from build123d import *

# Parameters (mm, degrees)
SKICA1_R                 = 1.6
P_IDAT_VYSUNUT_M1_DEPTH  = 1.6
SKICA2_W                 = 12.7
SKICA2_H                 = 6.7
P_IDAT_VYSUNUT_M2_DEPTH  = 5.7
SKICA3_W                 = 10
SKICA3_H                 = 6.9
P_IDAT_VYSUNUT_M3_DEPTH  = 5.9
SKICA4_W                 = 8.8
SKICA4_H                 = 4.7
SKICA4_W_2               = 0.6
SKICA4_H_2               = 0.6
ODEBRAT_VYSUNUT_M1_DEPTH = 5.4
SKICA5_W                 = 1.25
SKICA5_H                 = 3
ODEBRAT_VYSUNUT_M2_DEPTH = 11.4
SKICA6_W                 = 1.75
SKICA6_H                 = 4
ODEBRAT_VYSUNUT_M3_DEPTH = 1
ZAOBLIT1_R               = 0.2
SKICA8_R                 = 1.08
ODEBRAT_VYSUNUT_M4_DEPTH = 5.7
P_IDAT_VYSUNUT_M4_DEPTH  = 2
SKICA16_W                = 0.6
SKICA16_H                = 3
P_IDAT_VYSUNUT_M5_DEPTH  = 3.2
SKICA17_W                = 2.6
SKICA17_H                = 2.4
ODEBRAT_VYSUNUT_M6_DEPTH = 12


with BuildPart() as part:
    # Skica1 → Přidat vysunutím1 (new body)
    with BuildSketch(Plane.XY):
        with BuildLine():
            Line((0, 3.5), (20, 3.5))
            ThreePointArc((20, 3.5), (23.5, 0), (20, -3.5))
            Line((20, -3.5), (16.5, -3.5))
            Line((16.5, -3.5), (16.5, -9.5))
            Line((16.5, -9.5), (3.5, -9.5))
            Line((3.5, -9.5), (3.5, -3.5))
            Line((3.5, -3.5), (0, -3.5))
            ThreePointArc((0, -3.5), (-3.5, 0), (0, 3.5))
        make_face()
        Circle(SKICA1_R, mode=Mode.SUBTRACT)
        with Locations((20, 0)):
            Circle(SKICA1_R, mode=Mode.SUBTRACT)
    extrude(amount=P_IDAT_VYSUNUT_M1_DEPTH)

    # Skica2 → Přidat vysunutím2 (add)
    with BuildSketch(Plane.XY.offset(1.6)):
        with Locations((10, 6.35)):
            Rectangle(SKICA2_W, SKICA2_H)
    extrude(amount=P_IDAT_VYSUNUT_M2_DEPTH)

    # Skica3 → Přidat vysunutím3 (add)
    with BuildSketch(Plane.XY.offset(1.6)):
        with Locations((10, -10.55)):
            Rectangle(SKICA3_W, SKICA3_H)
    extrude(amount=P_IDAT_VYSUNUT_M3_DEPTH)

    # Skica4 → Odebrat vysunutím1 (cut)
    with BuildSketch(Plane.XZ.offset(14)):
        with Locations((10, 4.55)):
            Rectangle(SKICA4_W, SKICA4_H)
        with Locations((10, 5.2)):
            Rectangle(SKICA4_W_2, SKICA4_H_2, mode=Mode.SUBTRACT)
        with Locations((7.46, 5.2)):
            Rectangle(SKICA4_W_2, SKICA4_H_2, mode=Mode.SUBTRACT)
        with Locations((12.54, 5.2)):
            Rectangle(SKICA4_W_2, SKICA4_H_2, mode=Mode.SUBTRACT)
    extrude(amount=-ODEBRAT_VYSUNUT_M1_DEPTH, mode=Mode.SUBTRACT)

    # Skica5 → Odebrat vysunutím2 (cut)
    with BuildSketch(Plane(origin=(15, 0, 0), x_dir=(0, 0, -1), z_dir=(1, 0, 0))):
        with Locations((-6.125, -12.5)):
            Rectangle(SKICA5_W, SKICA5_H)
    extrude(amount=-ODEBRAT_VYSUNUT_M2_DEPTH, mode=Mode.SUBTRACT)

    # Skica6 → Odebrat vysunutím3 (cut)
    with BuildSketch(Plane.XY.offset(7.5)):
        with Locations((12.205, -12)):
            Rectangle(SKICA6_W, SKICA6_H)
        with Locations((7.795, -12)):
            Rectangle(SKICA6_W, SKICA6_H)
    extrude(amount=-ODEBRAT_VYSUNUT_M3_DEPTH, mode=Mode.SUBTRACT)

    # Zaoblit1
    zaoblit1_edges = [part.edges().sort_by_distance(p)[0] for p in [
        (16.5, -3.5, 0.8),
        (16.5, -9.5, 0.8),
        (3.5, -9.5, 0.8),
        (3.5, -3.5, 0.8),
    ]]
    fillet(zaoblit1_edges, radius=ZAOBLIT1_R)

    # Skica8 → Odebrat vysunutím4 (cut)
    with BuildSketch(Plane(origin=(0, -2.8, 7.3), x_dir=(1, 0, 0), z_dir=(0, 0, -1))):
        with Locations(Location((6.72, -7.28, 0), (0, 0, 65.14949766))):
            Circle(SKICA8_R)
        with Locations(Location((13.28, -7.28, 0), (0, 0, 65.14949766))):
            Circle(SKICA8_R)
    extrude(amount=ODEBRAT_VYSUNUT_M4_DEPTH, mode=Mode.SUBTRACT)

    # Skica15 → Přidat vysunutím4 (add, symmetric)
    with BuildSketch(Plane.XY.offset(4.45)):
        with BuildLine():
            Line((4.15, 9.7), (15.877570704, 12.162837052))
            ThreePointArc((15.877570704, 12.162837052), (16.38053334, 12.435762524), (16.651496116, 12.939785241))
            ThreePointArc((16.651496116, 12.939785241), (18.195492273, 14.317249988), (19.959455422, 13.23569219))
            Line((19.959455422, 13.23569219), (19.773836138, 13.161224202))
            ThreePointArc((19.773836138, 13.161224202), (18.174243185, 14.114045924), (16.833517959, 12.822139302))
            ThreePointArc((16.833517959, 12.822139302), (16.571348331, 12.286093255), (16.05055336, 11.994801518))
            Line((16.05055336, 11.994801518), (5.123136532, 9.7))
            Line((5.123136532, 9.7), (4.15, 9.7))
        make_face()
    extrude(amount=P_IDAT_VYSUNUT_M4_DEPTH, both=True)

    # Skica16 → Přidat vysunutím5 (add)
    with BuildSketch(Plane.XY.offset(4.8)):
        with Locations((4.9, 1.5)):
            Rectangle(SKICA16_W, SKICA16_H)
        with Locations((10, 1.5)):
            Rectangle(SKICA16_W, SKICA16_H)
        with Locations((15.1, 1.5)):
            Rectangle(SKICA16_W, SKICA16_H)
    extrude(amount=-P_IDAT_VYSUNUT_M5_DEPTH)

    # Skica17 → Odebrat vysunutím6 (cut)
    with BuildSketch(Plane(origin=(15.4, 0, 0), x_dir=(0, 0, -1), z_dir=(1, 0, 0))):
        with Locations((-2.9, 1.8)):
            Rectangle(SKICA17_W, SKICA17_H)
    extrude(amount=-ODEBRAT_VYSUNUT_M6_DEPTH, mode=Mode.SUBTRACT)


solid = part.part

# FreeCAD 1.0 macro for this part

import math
import FreeCAD as App
import Part
import Sketcher
from FreeCAD import Vector
Q = App.Units.Quantity


def edges_at(feature, points):
    """Names of the edges that pass closest to the given points."""
    edges = feature.Shape.Edges
    near = lambda p: min(range(len(edges)), key=lambda i: edges[i].distToShape(Part.Vertex(*p))[0])
    return sorted({f"Edge{near(p) + 1}" for p in points})


def add_polygon(sketch, points):
    """Adds a closed chain of lines whose ends are joined by coincident constraints."""
    first, n = sketch.GeometryCount, len(points)
    for a, b in zip(points, points[1:] + points[:1]):
        sketch.addGeometry(Part.LineSegment(App.Vector(*a, 0), App.Vector(*b, 0)), False)
    for i in range(n):
        sketch.addConstraint(Sketcher.Constraint("Coincident", first + i, 2, first + (i + 1) % n, 1))

doc = App.newDocument("Part")
params = doc.addObject("Spreadsheet::Sheet", "Params")
for row, (alias, value) in enumerate([
    ("sketch1_diameter", "3.2 mm"),
    ("sketch1_radius", "3.5 mm"),
    ("sketch1_width", "20 mm"),
    ("sketch1_width2", "13 mm"),
    ("sketch1_height", "6 mm"),
    ("pad1_length", "1.6 mm"),
    ("sketch2_width", "12.7 mm"),
    ("sketch2_height", "6.7 mm"),
    ("pad2_length", "5.7 mm"),
    ("sketch3_width", "10 mm"),
    ("sketch3_height", "6.9 mm"),
    ("pad3_length", "5.9 mm"),
    ("sketch4_width", "8.8 mm"),
    ("sketch4_width2", "0.6 mm"),
    ("sketch4_height", "4.7 mm"),
    ("pocket1_length", "5.4 mm"),
    ("sketch5_width", "3 mm"),
    ("sketch5_height", "1.25 mm"),
    ("pocket2_length", "11.4 mm"),
    ("sketch6_height", "4 mm"),
    ("sketch6_width", "1.75 mm"),
    ("pocket3_length", "1 mm"),
    ("fillet_radius", "0.2 mm"),
    ("sketch7_diameter", "2.16 mm"),
    ("pocket4_length", "5.7 mm"),
    ("sketch8_radius", "1 mm"),
    ("sketch8_length", "0.2 mm"),
    ("pad4_length", "4 mm"),
    ("sketch9_height", "3 mm"),
    ("sketch9_width", "0.6 mm"),
    ("pad5_length", "3.2 mm"),
    ("sketch10_width", "2.4 mm"),
    ("sketch10_height", "2.6 mm"),
    ("pocket5_length", "12 mm"),
], start=1):
    params.set(f"A{row}", alias)
    params.set(f"B{row}", "=" + value)
    params.setAlias(f"B{row}", alias)

body = doc.addObject("PartDesign::Body", "Body")

# Sketch on XY plane
sketch1 = body.newObject("Sketcher::SketchObject", "Sketch")
sketch1.AttachmentSupport = (doc.getObject("XY_Plane"), [""])
sketch1.MapMode = "FlatFace"
sketch1.addGeometry([
    Part.LineSegment(Vector(20, 3.5, 0), Vector(0, 3.5, 0)),  # 0
    Part.ArcOfCircle(Part.Circle(Vector(0, 0, 0), Vector(0, 0, 1), 3.5), math.radians(90), math.radians(270)),  # 1
    Part.LineSegment(Vector(0, -3.5, 0), Vector(3.5, -3.5, 0)),  # 2
    Part.LineSegment(Vector(3.5, -3.5, 0), Vector(3.5, -9.5, 0)),  # 3
    Part.LineSegment(Vector(3.5, -9.5, 0), Vector(16.5, -9.5, 0)),  # 4
    Part.LineSegment(Vector(16.5, -9.5, 0), Vector(16.5, -3.5, 0)),  # 5
    Part.LineSegment(Vector(16.5, -3.5, 0), Vector(20, -3.5, 0)),  # 6
    Part.ArcOfCircle(Part.Circle(Vector(20, 0, 0), Vector(0, 0, 1), 3.5), math.radians(-90), math.radians(90)),  # 7
    Part.Circle(Vector(20, 0, 0), Vector(0, 0, 1), 1.6),  # 8
    Part.Circle(Vector(0, 0, 0), Vector(0, 0, 1), 1.6),  # 9
], False)
sketch1.addConstraint([
    Sketcher.Constraint("Tangent", 0, 2, 1, 1),
    Sketcher.Constraint("Tangent", 1, 2, 2, 1),
    Sketcher.Constraint("Coincident", 2, 2, 3, 1),
    Sketcher.Constraint("Coincident", 3, 2, 4, 1),
    Sketcher.Constraint("Coincident", 4, 2, 5, 1),
    Sketcher.Constraint("Coincident", 5, 2, 6, 1),
    Sketcher.Constraint("Tangent", 6, 2, 7, 1),
    Sketcher.Constraint("Tangent", 7, 2, 0, 1),
    Sketcher.Constraint("Horizontal", 0),
    Sketcher.Constraint("Horizontal", 2),
    Sketcher.Constraint("Vertical", 3),
    Sketcher.Constraint("Horizontal", 4),
    Sketcher.Constraint("Vertical", 5),
    Sketcher.Constraint("Horizontal", 6),
    Sketcher.Constraint("Coincident", 1, 3, -1, 1),
    Sketcher.Constraint("Coincident", 9, 3, -1, 1),
    Sketcher.Constraint("Coincident", 8, 3, 7, 3),
    Sketcher.Constraint("Equal", 1, 7),
    Sketcher.Constraint("Equal", 8, 9),
    Sketcher.Constraint("Equal", 2, 6),
    Sketcher.Constraint("Diameter", 8, 3.2),
    Sketcher.Constraint("Radius", 1, 3.5),
    Sketcher.Constraint("DistanceX", 0, 2, 0, 1, 20.0),
    Sketcher.Constraint("DistanceX", 4, 1, 4, 2, 13.0),
    Sketcher.Constraint("DistanceY", 3, 2, 3, 1, 6.0),
])
sketch1.setExpression("Constraints[20]", "Params.sketch1_diameter")
sketch1.setExpression("Constraints[21]", "Params.sketch1_radius")
sketch1.setExpression("Constraints[22]", "Params.sketch1_width")
sketch1.setExpression("Constraints[23]", "Params.sketch1_width2")
sketch1.setExpression("Constraints[24]", "Params.sketch1_height")
pad1 = body.newObject("PartDesign::Pad", "Pad")
pad1.Profile = sketch1
pad1.setExpression("Length", "Params.pad1_length")

# Sketch on XY plane
sketch2 = body.newObject("Sketcher::SketchObject", "Sketch001")
sketch2.AttachmentSupport = (doc.getObject("XY_Plane"), [""])
sketch2.MapMode = "FlatFace"
sketch2.AttachmentOffset = App.Placement(Vector(0, 0, 1.6), App.Rotation())
add_polygon(sketch2, [(4, 10), (4, 3), (16, 3), (16, 10)])  # lines 0-3
sketch2.addConstraint([
    Sketcher.Constraint("Vertical", 0),
    Sketcher.Constraint("Horizontal", 1),
    Sketcher.Constraint("Vertical", 2),
    Sketcher.Constraint("Horizontal", 3),
    Sketcher.Constraint("DistanceX", 1, 1, 1, 2, 12.7),
    Sketcher.Constraint("DistanceY", 0, 2, 0, 1, 6.7),
    Sketcher.Constraint("DistanceY", -1, 1, 0, 2, 3.0),
    Sketcher.Constraint("DistanceX", -1, 1, 0, 2, 3.65),
])
sketch2.setExpression("Constraints[8]", "Params.sketch2_width")
sketch2.setExpression("Constraints[9]", "Params.sketch2_height")
pad2 = body.newObject("PartDesign::Pad", "Pad001")
pad2.Profile = sketch2
pad2.setExpression("Length", "Params.pad2_length")

# Sketch on XY plane
sketch3 = body.newObject("Sketcher::SketchObject", "Sketch002")
sketch3.AttachmentSupport = (doc.getObject("XY_Plane"), [""])
sketch3.MapMode = "FlatFace"
sketch3.AttachmentOffset = App.Placement(Vector(0, 0, 1.6), App.Rotation())
add_polygon(sketch3, [(5, -7), (5, -14), (15, -14), (15, -7)])  # lines 0-3
sketch3.addConstraint([
    Sketcher.Constraint("Vertical", 0),
    Sketcher.Constraint("Horizontal", 1),
    Sketcher.Constraint("Vertical", 2),
    Sketcher.Constraint("Horizontal", 3),
    Sketcher.Constraint("DistanceX", 1, 1, 1, 2, 10.0),
    Sketcher.Constraint("DistanceY", 0, 2, 0, 1, 6.9),
    Sketcher.Constraint("DistanceX", -1, 1, 0, 2, 5.0),
    Sketcher.Constraint("DistanceY", 0, 2, -1, 1, 14.0),
])
sketch3.setExpression("Constraints[8]", "Params.sketch3_width")
sketch3.setExpression("Constraints[9]", "Params.sketch3_height")
pad3 = body.newObject("PartDesign::Pad", "Pad002")
pad3.Profile = sketch3
pad3.setExpression("Length", "Params.pad3_length")

# Sketch on XZ plane
sketch4 = body.newObject("Sketcher::SketchObject", "Sketch003")
sketch4.AttachmentSupport = (doc.getObject("XZ_Plane"), [""])
sketch4.MapMode = "FlatFace"
sketch4.AttachmentOffset = App.Placement(Vector(0, 0, 14), App.Rotation())
add_polygon(sketch4, [(5.6, 6.9), (5.6, 2.2), (14.4, 2.2), (14.4, 6.9)])  # lines 0-3
add_polygon(sketch4, [(7.8, 4.9), (7.2, 4.9), (7.2, 5.5), (7.8, 5.5)])  # lines 4-7
add_polygon(sketch4, [(10.3, 4.9), (9.7, 4.9), (9.7, 5.5), (10.3, 5.5)])  # lines 8-11
add_polygon(sketch4, [(12.8, 4.9), (12.2, 4.9), (12.2, 5.5), (12.8, 5.5)])  # lines 12-15
sketch4.addConstraint([
    Sketcher.Constraint("Vertical", 0),
    Sketcher.Constraint("Horizontal", 1),
    Sketcher.Constraint("Vertical", 2),
    Sketcher.Constraint("Horizontal", 3),
    Sketcher.Constraint("Horizontal", 4),
    Sketcher.Constraint("Vertical", 5),
    Sketcher.Constraint("Horizontal", 6),
    Sketcher.Constraint("Vertical", 7),
    Sketcher.Constraint("Horizontal", 8),
    Sketcher.Constraint("Vertical", 9),
    Sketcher.Constraint("Horizontal", 10),
    Sketcher.Constraint("Vertical", 11),
    Sketcher.Constraint("Horizontal", 12),
    Sketcher.Constraint("Vertical", 13),
    Sketcher.Constraint("Horizontal", 14),
    Sketcher.Constraint("Vertical", 15),
    Sketcher.Constraint("Horizontal", 7, 2, 8, 2),
    Sketcher.Constraint("Horizontal", 6, 2, 9, 2),
    Sketcher.Constraint("Horizontal", 11, 2, 12, 2),
    Sketcher.Constraint("Horizontal", 10, 2, 13, 2),
    Sketcher.Constraint("Equal", 6, 8),
    Sketcher.Constraint("Equal", 10, 12),
    Sketcher.Constraint("Equal", 14, 5),
    Sketcher.Constraint("DistanceX", 1, 1, 1, 2, 8.8),
    Sketcher.Constraint("DistanceX", 4, 2, 4, 1, 0.6),
    Sketcher.Constraint("DistanceY", 0, 2, 0, 1, 4.7),
    Sketcher.Constraint("DistanceY", 4, 2, 3, 2, 2.0),
    Sketcher.Constraint("DistanceX", -1, 1, 0, 2, 5.6),
    Sketcher.Constraint("DistanceY", -1, 1, 0, 2, 2.2),
    Sketcher.Constraint("DistanceX", -1, 1, 8, 2, 9.7),
    Sketcher.Constraint("DistanceX", -1, 1, 4, 2, 7.16),
    Sketcher.Constraint("DistanceX", -1, 1, 12, 2, 12.24),
])
sketch4.setExpression("Constraints[39]", "Params.sketch4_width")
sketch4.setExpression("Constraints[40]", "Params.sketch4_width2")
sketch4.setExpression("Constraints[41]", "Params.sketch4_height")
pocket1 = body.newObject("PartDesign::Pocket", "Pocket")
pocket1.Profile = sketch4
pocket1.setExpression("Length", "Params.pocket1_length")

# Sketch on YZ plane
sketch5 = body.newObject("Sketcher::SketchObject", "Sketch004")
sketch5.AttachmentSupport = (doc.getObject("YZ_Plane"), [""])
sketch5.MapMode = "FlatFace"
sketch5.AttachmentOffset = App.Placement(Vector(0, 0, 15), App.Rotation())
add_polygon(sketch5, [(-11, 6.8), (-14, 6.8), (-14, 5.5), (-11, 5.5)])  # lines 0-3
sketch5.addConstraint([
    Sketcher.Constraint("Horizontal", 0),
    Sketcher.Constraint("Vertical", 1),
    Sketcher.Constraint("Horizontal", 2),
    Sketcher.Constraint("Vertical", 3),
    Sketcher.Constraint("DistanceX", 0, 2, 0, 1, 3.0),
    Sketcher.Constraint("DistanceX", 0, 2, -1, 1, 14.0),
    Sketcher.Constraint("DistanceY", 1, 2, 1, 1, 1.25),
    Sketcher.Constraint("DistanceY", -1, 1, 1, 2, 5.5),
])
sketch5.setExpression("Constraints[8]", "Params.sketch5_width")
sketch5.setExpression("Constraints[10]", "Params.sketch5_height")
pocket2 = body.newObject("PartDesign::Pocket", "Pocket001")
pocket2.Profile = sketch5
pocket2.setExpression("Length", "Params.pocket2_length")

# Sketch on XY plane
sketch6 = body.newObject("Sketcher::SketchObject", "Sketch005")
sketch6.AttachmentSupport = (doc.getObject("XY_Plane"), [""])
sketch6.MapMode = "FlatFace"
sketch6.AttachmentOffset = App.Placement(Vector(0, 0, 7.5), App.Rotation())
add_polygon(sketch6, [(11.3, -10), (11.3, -14), (13.1, -14), (13.1, -10)])  # lines 0-3
add_polygon(sketch6, [(6.9, -10), (6.9, -14), (8.7, -14), (8.7, -10)])  # lines 4-7
sketch6.addConstraint([
    Sketcher.Constraint("Vertical", 0),
    Sketcher.Constraint("Horizontal", 1),
    Sketcher.Constraint("Vertical", 2),
    Sketcher.Constraint("Horizontal", 3),
    Sketcher.Constraint("Vertical", 4),
    Sketcher.Constraint("Horizontal", 5),
    Sketcher.Constraint("Vertical", 6),
    Sketcher.Constraint("Horizontal", 7),
    Sketcher.Constraint("Horizontal", 1, 2, 4, 2),
    Sketcher.Constraint("Horizontal", 3, 2, 6, 2),
    Sketcher.Constraint("Equal", 3, 5),
    Sketcher.Constraint("DistanceY", 0, 2, 0, 1, 4.0),
    Sketcher.Constraint("DistanceY", 0, 2, -1, 1, 14.0),
    Sketcher.Constraint("DistanceX", 1, 1, 1, 2, 1.75),
    Sketcher.Constraint("DistanceX", -1, 1, 0, 2, 11.33),
    Sketcher.Constraint("DistanceX", -1, 1, 4, 2, 6.92),
])
sketch6.setExpression("Constraints[19]", "Params.sketch6_height")
sketch6.setExpression("Constraints[21]", "Params.sketch6_width")
pocket3 = body.newObject("PartDesign::Pocket", "Pocket002")
pocket3.Profile = sketch6
pocket3.setExpression("Length", "Params.pocket3_length")
doc.recompute()

fillet = body.newObject("PartDesign::Fillet", "Fillet")
fillet.Base = (pocket3, edges_at(pocket3, [
    (16.5, -3.5, 0.8),
    (16.5, -9.5, 0.8),
    (3.5, -9.5, 0.8),
    (3.5, -3.5, 0.8),
]))
fillet.setExpression("Radius", "Params.fillet_radius")

# Sketch on XY plane
sketch7 = body.newObject("Sketcher::SketchObject", "Sketch006")
sketch7.AttachmentSupport = (doc.getObject("XY_Plane"), [""])
sketch7.MapMode = "FlatFace"
sketch7.AttachmentOffset = App.Placement(Vector(0, 0, 7.3), App.Rotation())
sketch7.addGeometry([
    Part.Circle(Vector(6.7, 4.5, 0), Vector(0, 0, 1), 1.1),
    Part.Circle(Vector(13.3, 4.5, 0), Vector(0, 0, 1), 1.1),
], False)
sketch7.addConstraint([
    Sketcher.Constraint("Equal", 0, 1),
    Sketcher.Constraint("Horizontal", 0, 3, 1, 3),
    Sketcher.Constraint("Diameter", 0, 2.16),
    Sketcher.Constraint("DistanceX", -1, 1, 0, 3, 6.72),
    Sketcher.Constraint("DistanceY", -1, 1, 0, 3, 4.48),
    Sketcher.Constraint("DistanceX", -1, 1, 1, 3, 13.28),
])
sketch7.setExpression("Constraints[2]", "Params.sketch7_diameter")
pocket4 = body.newObject("PartDesign::Pocket", "Pocket003")
pocket4.Profile = sketch7
pocket4.setExpression("Length", "Params.pocket4_length")

# Sketch on XY plane
sketch8 = body.newObject("Sketcher::SketchObject", "Sketch007")
sketch8.AttachmentSupport = (doc.getObject("XY_Plane"), [""])
sketch8.MapMode = "FlatFace"
sketch8.AttachmentOffset = App.Placement(Vector(0, 0, 4.45), App.Rotation())
sketch8.addGeometry([
    Part.LineSegment(Vector(15.88, 12.16, 0), Vector(4.15, 9.7, 0)),  # 0
    Part.LineSegment(Vector(4.15, 9.7, 0), Vector(5.12, 9.7, 0)),  # 1
    Part.LineSegment(Vector(5.12, 9.7, 0), Vector(16.05, 11.99, 0)),  # 2
    Part.ArcOfCircle(Part.Circle(Vector(15.85, 12.97, 0), Vector(0, 0, 1), 1), math.radians(-78), math.radians(-9)),  # 3
    Part.ArcOfCircle(Part.Circle(Vector(18.35, 12.59, 0), Vector(0, 0, 1), 1.53), math.radians(22), math.radians(171)),  # 4
    Part.LineSegment(Vector(19.77, 13.16, 0), Vector(19.96, 13.24, 0)),  # 5
    Part.ArcOfCircle(Part.Circle(Vector(18.35, 12.59, 0), Vector(0, 0, 1), 1.73), math.radians(22), math.radians(168)),  # 6
    Part.ArcOfCircle(Part.Circle(Vector(15.67, 13.14, 0), Vector(0, 0, 1), 1), math.radians(-78), math.radians(-12)),  # 7
], False)
sketch8.addConstraint([
    Sketcher.Constraint("Coincident", 0, 2, 1, 1),
    Sketcher.Constraint("Coincident", 1, 2, 2, 1),
    Sketcher.Constraint("Tangent", 2, 2, 3, 1),
    Sketcher.Constraint("Tangent", 3, 2, 4, 2),
    Sketcher.Constraint("Coincident", 4, 1, 5, 1),
    Sketcher.Constraint("Coincident", 5, 2, 6, 1),
    Sketcher.Constraint("Tangent", 6, 2, 7, 2),
    Sketcher.Constraint("Tangent", 7, 1, 0, 1),
    Sketcher.Constraint("Horizontal", 1),
    Sketcher.Constraint("Coincident", 6, 3, 4, 3),
    Sketcher.Constraint("Equal", 3, 7),
    Sketcher.Constraint("Parallel", 0, 2),
    Sketcher.Constraint("Radius", 3, 1.0),
    Sketcher.Constraint("Distance", 5, 0.2),
    Sketcher.Constraint("DistanceY", -1, 1, 0, 2, 9.7),
    Sketcher.Constraint("Angle", 0, Q("-168.14 deg")),
    Sketcher.Constraint("Angle", 5, Q("21.86 deg")),
    Sketcher.Constraint("DistanceX", 0, 2, 4, 3, 14.2),
    Sketcher.Constraint("DistanceX", -1, 1, 4, 3, 18.35),
    Sketcher.Constraint("DistanceY", -1, 1, 4, 3, 12.59),
    Sketcher.Constraint("Radius", 4, 1.534147),
    Sketcher.Constraint("DistanceY", -1, 1, 2, 2, 11.994802),
    Sketcher.Constraint("DistanceX", 3, 2, 4, 1, 2.940318),
])
sketch8.setExpression("Constraints[12]", "Params.sketch8_radius")
sketch8.setExpression("Constraints[13]", "Params.sketch8_length")
pad4 = body.newObject("PartDesign::Pad", "Pad003")
pad4.Profile = sketch8
pad4.setExpression("Length", "Params.pad4_length")
pad4.Midplane = True

# Sketch on XY plane
sketch9 = body.newObject("Sketcher::SketchObject", "Sketch008")
sketch9.AttachmentSupport = (doc.getObject("XY_Plane"), [""])
sketch9.MapMode = "FlatFace"
sketch9.AttachmentOffset = App.Placement(Vector(0, 0, 4.8), App.Rotation())
add_polygon(sketch9, [(4.6, 3), (4.6, 0), (5.2, 0), (5.2, 3)])  # lines 0-3
add_polygon(sketch9, [(9.7, 3), (9.7, 0), (10.3, 0), (10.3, 3)])  # lines 4-7
add_polygon(sketch9, [(14.8, 3), (14.8, 0), (15.4, 0), (15.4, 3)])  # lines 8-11
sketch9.addConstraint([
    Sketcher.Constraint("Vertical", 0),
    Sketcher.Constraint("Horizontal", 1),
    Sketcher.Constraint("Vertical", 2),
    Sketcher.Constraint("Horizontal", 3),
    Sketcher.Constraint("Vertical", 4),
    Sketcher.Constraint("Horizontal", 5),
    Sketcher.Constraint("Vertical", 6),
    Sketcher.Constraint("Horizontal", 7),
    Sketcher.Constraint("Vertical", 8),
    Sketcher.Constraint("Horizontal", 9),
    Sketcher.Constraint("Vertical", 10),
    Sketcher.Constraint("Horizontal", 11),
    Sketcher.Constraint("PointOnObject", 0, 2, -1),
    Sketcher.Constraint("PointOnObject", 4, 2, -1),
    Sketcher.Constraint("PointOnObject", 8, 2, -1),
    Sketcher.Constraint("Horizontal", 3, 2, 6, 2),
    Sketcher.Constraint("Horizontal", 7, 2, 10, 2),
    Sketcher.Constraint("Equal", 3, 5),
    Sketcher.Constraint("Equal", 7, 9),
    Sketcher.Constraint("DistanceY", 0, 2, 0, 1, 3.0),
    Sketcher.Constraint("DistanceX", 1, 1, 1, 2, 0.6),
    Sketcher.Constraint("DistanceX", -1, 1, 0, 2, 4.6),
    Sketcher.Constraint("DistanceX", -1, 1, 4, 2, 9.7),
    Sketcher.Constraint("DistanceX", -1, 1, 8, 2, 14.8),
])
sketch9.setExpression("Constraints[31]", "Params.sketch9_height")
sketch9.setExpression("Constraints[32]", "Params.sketch9_width")
pad5 = body.newObject("PartDesign::Pad", "Pad004")
pad5.Profile = sketch9
pad5.setExpression("Length", "Params.pad5_length")
pad5.Reversed = True

# Sketch on YZ plane
sketch10 = body.newObject("Sketcher::SketchObject", "Sketch009")
sketch10.AttachmentSupport = (doc.getObject("YZ_Plane"), [""])
sketch10.MapMode = "FlatFace"
sketch10.AttachmentOffset = App.Placement(Vector(0, 0, 15.4), App.Rotation())
add_polygon(sketch10, [(3, 4.2), (0.6, 4.2), (0.6, 1.6), (3, 1.6)])  # lines 0-3
sketch10.addConstraint([
    Sketcher.Constraint("Horizontal", 0),
    Sketcher.Constraint("Vertical", 1),
    Sketcher.Constraint("Horizontal", 2),
    Sketcher.Constraint("Vertical", 3),
    Sketcher.Constraint("DistanceX", 0, 2, 0, 1, 2.4),
    Sketcher.Constraint("DistanceY", 1, 2, 1, 1, 2.6),
    Sketcher.Constraint("DistanceX", -1, 1, 2, 2, 3.0),
    Sketcher.Constraint("DistanceY", -1, 1, 0, 2, 4.2),
])
sketch10.setExpression("Constraints[8]", "Params.sketch10_width")
sketch10.setExpression("Constraints[9]", "Params.sketch10_height")
pocket5 = body.newObject("PartDesign::Pocket", "Pocket004")
pocket5.Profile = sketch10
pocket5.setExpression("Length", "Params.pocket5_length")

doc.recompute()
